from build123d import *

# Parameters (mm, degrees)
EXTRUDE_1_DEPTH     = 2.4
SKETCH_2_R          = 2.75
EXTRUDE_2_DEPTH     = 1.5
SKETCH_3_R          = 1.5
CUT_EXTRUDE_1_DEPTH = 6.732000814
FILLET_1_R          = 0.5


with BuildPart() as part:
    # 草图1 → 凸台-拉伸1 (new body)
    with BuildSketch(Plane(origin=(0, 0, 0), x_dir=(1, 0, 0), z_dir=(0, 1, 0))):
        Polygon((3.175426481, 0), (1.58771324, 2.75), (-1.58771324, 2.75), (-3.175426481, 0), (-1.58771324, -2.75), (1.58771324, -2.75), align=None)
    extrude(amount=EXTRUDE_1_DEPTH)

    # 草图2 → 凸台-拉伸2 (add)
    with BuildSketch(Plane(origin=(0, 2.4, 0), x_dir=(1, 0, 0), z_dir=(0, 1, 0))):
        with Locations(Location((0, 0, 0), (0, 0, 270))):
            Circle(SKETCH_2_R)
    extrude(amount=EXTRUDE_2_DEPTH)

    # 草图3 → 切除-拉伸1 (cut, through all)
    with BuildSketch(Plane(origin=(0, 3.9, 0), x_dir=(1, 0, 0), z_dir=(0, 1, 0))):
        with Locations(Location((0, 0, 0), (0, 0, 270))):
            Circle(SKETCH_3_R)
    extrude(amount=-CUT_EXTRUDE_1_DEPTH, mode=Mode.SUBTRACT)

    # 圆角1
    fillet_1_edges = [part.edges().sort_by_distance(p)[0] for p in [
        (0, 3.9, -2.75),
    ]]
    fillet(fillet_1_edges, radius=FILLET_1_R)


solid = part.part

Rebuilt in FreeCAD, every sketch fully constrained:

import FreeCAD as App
import Part
import Sketcher
Q = App.Units.Quantity


def edges_at(feature, points):
    """Names of the edges that pass closest to the given points."""
    edges = feature.Shape.Edges
    near = lambda p: min(range(len(edges)), key=lambda i: edges[i].distToShape(Part.Vertex(*p))[0])
    return sorted({f"Edge{near(p) + 1}" for p in points})

doc = App.newDocument("Part")
body = doc.addObject("PartDesign::Body", "Body")

# Sketch on XZ plane
sketch1 = doc.addObject("Sketcher::SketchObject", "Sketch")
body.addObject(sketch1)
sketch1.AttachmentSupport = (doc.XZ_Plane, [""])
sketch1.MapMode = "FlatFace"
sketch1.addGeometry([
    Part.LineSegment(App.Vector(3.2, 0, 0), App.Vector(1.6, -2.8, 0)),  # 0
    Part.LineSegment(App.Vector(1.6, -2.8, 0), App.Vector(-1.6, -2.8, 0)),  # 1
    Part.LineSegment(App.Vector(-1.6, -2.8, 0), App.Vector(-3.2, 0, 0)),  # 2
    Part.LineSegment(App.Vector(-3.2, 0, 0), App.Vector(-1.6, 2.8, 0)),  # 3
    Part.LineSegment(App.Vector(-1.6, 2.8, 0), App.Vector(1.6, 2.8, 0)),  # 4
    Part.LineSegment(App.Vector(1.6, 2.8, 0), App.Vector(3.2, 0, 0)),  # 5
], False)
sketch1.addConstraint([
    Sketcher.Constraint("Coincident", 0, 2, 1, 1),
    Sketcher.Constraint("Coincident", 1, 2, 2, 1),
    Sketcher.Constraint("Coincident", 2, 2, 3, 1),
    Sketcher.Constraint("Coincident", 3, 2, 4, 1),
    Sketcher.Constraint("Coincident", 4, 2, 5, 1),
    Sketcher.Constraint("Coincident", 5, 2, 0, 1),
    Sketcher.Constraint("Horizontal", 1),
    Sketcher.Constraint("Horizontal", 4),
    Sketcher.Constraint("Symmetric", 0, 2, 3, 2, -1, 1),
    Sketcher.Constraint("Symmetric", 2, 2, 5, 2, -1, 1),
    Sketcher.Constraint("PointOnObject", 2, 2, -1),
    Sketcher.Constraint("Parallel", 2, 5),
    Sketcher.Constraint("Vertical", 1, 2, 3, 2),
    Sketcher.Constraint("Angle", 0, Q("-120 deg")),
    Sketcher.Constraint("DistanceY", 1, 2, 3, 2, Q("5.5 mm")),
    Sketcher.Constraint("DistanceX", 1, 2, 1, 1, Q("3.175426 mm")),
])
pad1 = doc.addObject("PartDesign::Pad", "Pad")
body.addObject(pad1)
pad1.Profile = sketch1
pad1.Length = 2.4
pad1.Reversed = True

# Sketch on XZ plane
sketch2 = doc.addObject("Sketcher::SketchObject", "Sketch001")
body.addObject(sketch2)
sketch2.AttachmentSupport = (doc.XZ_Plane, [""])
sketch2.MapMode = "FlatFace"
sketch2.AttachmentOffset = App.Placement(App.Vector(0, 0, -2.4), App.Rotation())
sketch2.addGeometry(Part.Circle(App.Vector(0, 0, 0), App.Vector(0, 0, 1), 2.8), False)
sketch2.addConstraint([
    Sketcher.Constraint("Coincident", 0, 3, -1, 1),
    Sketcher.Constraint("Diameter", 0, Q("5.5 mm")),
])
pad2 = doc.addObject("PartDesign::Pad", "Pad001")
body.addObject(pad2)
pad2.Profile = sketch2
pad2.Length = 1.5
pad2.Reversed = True

# Sketch on XZ plane
sketch3 = doc.addObject("Sketcher::SketchObject", "Sketch002")
body.addObject(sketch3)
sketch3.AttachmentSupport = (doc.XZ_Plane, [""])
sketch3.MapMode = "FlatFace"
sketch3.AttachmentOffset = App.Placement(App.Vector(0, 0, -3.9), App.Rotation())
sketch3.addGeometry(Part.Circle(App.Vector(0, 0, 0), App.Vector(0, 0, 1), 1.5), False)
sketch3.addConstraint([
    Sketcher.Constraint("Coincident", 0, 3, -1, 1),
    Sketcher.Constraint("Diameter", 0, Q("3 mm")),
])
pocket1 = doc.addObject("PartDesign::Pocket", "Pocket")
body.addObject(pocket1)
pocket1.Profile = sketch3
pocket1.Type = "ThroughAll"
pocket1.Reversed = True
doc.recompute()

fillet = doc.addObject("PartDesign::Fillet", "Fillet")
body.addObject(fillet)
fillet.Base = (pocket1, edges_at(pocket1, [(0, 3.9, -2.75)]))
fillet.Radius = 0.5

doc.recompute()
